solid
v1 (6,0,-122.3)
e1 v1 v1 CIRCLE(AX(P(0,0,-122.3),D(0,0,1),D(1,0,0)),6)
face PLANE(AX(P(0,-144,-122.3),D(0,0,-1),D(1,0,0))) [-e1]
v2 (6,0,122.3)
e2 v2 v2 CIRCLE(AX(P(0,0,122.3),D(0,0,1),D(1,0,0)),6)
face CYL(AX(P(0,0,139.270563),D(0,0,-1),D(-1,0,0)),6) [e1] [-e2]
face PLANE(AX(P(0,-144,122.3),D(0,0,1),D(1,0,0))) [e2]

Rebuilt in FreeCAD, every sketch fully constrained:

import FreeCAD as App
import Part
import Sketcher

V = App.Vector
Q = App.Units.Quantity

doc = App.newDocument("Part")
body = doc.addObject("PartDesign::Body", "Body")

# Sketch on XY plane
sketch1 = doc.addObject("Sketcher::SketchObject", "Sketch")
body.addObject(sketch1)
sketch1.AttachmentSupport = (doc.XY_Plane, [""])
sketch1.MapMode = "FlatFace"
sketch1.addGeometry(Part.Circle(V(0, 0, 0), V(0, 0, 1), 6), False)
sketch1.addConstraint([
    Sketcher.Constraint("Coincident", 0, 3, -1, 1),
    Sketcher.Constraint("Diameter", 0, Q("12 mm")),
])
pad1 = doc.addObject("PartDesign::Pad", "Pad")
body.addObject(pad1)
pad1.Profile = sketch1
pad1.Length = 122.3
body2 = doc.addObject("PartDesign::Body", "Body001")
doc.recompute()

body2.BaseFeature = body
doc.recompute()

mirroring = doc.addObject("Part::Mirroring", "Mirroring")
mirroring.Source = body
mirroring.Base = V(0, 0, 0)
mirroring.Normal = V(0, 0, 1)
body3 = doc.addObject("PartDesign::Body", "Body002")
body3.BaseFeature = mirroring
boolean = doc.addObject("PartDesign::Boolean", "Boolean")
body2.addObject(boolean)
boolean.Type = "Fuse"
boolean.addObjects([body3])
doc.recompute()
mirroring.Visibility = False

doc.recompute()
